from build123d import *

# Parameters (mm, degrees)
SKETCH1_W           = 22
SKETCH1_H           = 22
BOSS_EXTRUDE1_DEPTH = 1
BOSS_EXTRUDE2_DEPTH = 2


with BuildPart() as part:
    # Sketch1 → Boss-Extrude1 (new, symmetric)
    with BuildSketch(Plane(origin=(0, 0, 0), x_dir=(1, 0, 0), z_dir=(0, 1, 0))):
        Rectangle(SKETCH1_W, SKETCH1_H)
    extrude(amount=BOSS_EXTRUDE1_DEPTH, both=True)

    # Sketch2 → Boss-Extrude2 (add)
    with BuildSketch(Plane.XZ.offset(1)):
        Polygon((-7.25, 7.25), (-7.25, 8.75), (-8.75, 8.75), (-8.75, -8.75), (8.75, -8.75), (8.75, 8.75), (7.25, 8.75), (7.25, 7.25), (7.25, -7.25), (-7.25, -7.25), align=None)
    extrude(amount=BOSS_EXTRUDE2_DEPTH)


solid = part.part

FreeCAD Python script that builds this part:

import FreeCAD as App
import Part
import Sketcher


def add_polygon(sketch, points):
    """Adds a closed chain of lines whose ends are joined by coincident constraints."""
    first, n = sketch.GeometryCount, len(points)
    for a, b in zip(points, points[1:] + points[:1]):
        sketch.addGeometry(Part.LineSegment(App.Vector(*a, 0), App.Vector(*b, 0)), False)
    for i in range(n):
        sketch.addConstraint(Sketcher.Constraint("Coincident", first + i, 2, first + (i + 1) % n, 1))

doc = App.newDocument("Part")
body = doc.addObject("PartDesign::Body", "Body")

sketch1 = body.newObject("Sketcher::SketchObject", "Sketch")
sketch1.AttachmentSupport = (doc.getObject("XZ_Plane"), [""])
sketch1.MapMode = "FlatFace"
add_polygon(sketch1, [(-11, -11), (-11, 11), (11, 11), (11, -11)])
sketch1.addConstraint([
    Sketcher.Constraint("Vertical", 0),
    Sketcher.Constraint("Horizontal", 1),
    Sketcher.Constraint("Vertical", 2),
    Sketcher.Constraint("Horizontal", 3),
    Sketcher.Constraint("Symmetric", 0, 2, 2, 2, -1, 1),
    Sketcher.Constraint("Equal", 3, 0),
    Sketcher.Constraint("DistanceX", 1, 1, 1, 2, 22.0),
])
pad1 = body.newObject("PartDesign::Pad", "Pad")
pad1.Profile = sketch1
pad1.Length = 2
pad1.Midplane = True

sketch2 = body.newObject("Sketcher::SketchObject", "Sketch001")
sketch2.AttachmentSupport = (doc.getObject("XZ_Plane"), [""])
sketch2.MapMode = "FlatFace"
sketch2.AttachmentOffset = App.Placement(App.Vector(0, 0, 1), App.Rotation())
add_polygon(sketch2, [(-7.25, 8.75), (-8.75, 8.75), (-8.75, -8.75), (8.75, -8.75), (8.75, 8.75), (7.25, 8.75), (7.25, -7.25), (-7.25, -7.25)])
sketch2.addConstraint([
    Sketcher.Constraint("Horizontal", 0),
    Sketcher.Constraint("Vertical", 1),
    Sketcher.Constraint("Horizontal", 2),
    Sketcher.Constraint("Vertical", 3),
    Sketcher.Constraint("Horizontal", 4),
    Sketcher.Constraint("Vertical", 5),
    Sketcher.Constraint("Horizontal", 6),
    Sketcher.Constraint("Vertical", 7),
    Sketcher.Constraint("Symmetric", 0, 2, 2, 2, -1, 1),
    Sketcher.Constraint("Symmetric", 4, 2, 7, 2, -2),
    Sketcher.Constraint("Equal", 2, 1),
    Sketcher.Constraint("DistanceY", 5, 2, 5, 1, 16.0),
    Sketcher.Constraint("DistanceX", 0, 2, 0, 1, 1.5),
    Sketcher.Constraint("DistanceX", 2, 1, 2, 2, 17.5),
])
pad2 = body.newObject("PartDesign::Pad", "Pad001")
pad2.Profile = sketch2
pad2.Length = 2

doc.recompute()
